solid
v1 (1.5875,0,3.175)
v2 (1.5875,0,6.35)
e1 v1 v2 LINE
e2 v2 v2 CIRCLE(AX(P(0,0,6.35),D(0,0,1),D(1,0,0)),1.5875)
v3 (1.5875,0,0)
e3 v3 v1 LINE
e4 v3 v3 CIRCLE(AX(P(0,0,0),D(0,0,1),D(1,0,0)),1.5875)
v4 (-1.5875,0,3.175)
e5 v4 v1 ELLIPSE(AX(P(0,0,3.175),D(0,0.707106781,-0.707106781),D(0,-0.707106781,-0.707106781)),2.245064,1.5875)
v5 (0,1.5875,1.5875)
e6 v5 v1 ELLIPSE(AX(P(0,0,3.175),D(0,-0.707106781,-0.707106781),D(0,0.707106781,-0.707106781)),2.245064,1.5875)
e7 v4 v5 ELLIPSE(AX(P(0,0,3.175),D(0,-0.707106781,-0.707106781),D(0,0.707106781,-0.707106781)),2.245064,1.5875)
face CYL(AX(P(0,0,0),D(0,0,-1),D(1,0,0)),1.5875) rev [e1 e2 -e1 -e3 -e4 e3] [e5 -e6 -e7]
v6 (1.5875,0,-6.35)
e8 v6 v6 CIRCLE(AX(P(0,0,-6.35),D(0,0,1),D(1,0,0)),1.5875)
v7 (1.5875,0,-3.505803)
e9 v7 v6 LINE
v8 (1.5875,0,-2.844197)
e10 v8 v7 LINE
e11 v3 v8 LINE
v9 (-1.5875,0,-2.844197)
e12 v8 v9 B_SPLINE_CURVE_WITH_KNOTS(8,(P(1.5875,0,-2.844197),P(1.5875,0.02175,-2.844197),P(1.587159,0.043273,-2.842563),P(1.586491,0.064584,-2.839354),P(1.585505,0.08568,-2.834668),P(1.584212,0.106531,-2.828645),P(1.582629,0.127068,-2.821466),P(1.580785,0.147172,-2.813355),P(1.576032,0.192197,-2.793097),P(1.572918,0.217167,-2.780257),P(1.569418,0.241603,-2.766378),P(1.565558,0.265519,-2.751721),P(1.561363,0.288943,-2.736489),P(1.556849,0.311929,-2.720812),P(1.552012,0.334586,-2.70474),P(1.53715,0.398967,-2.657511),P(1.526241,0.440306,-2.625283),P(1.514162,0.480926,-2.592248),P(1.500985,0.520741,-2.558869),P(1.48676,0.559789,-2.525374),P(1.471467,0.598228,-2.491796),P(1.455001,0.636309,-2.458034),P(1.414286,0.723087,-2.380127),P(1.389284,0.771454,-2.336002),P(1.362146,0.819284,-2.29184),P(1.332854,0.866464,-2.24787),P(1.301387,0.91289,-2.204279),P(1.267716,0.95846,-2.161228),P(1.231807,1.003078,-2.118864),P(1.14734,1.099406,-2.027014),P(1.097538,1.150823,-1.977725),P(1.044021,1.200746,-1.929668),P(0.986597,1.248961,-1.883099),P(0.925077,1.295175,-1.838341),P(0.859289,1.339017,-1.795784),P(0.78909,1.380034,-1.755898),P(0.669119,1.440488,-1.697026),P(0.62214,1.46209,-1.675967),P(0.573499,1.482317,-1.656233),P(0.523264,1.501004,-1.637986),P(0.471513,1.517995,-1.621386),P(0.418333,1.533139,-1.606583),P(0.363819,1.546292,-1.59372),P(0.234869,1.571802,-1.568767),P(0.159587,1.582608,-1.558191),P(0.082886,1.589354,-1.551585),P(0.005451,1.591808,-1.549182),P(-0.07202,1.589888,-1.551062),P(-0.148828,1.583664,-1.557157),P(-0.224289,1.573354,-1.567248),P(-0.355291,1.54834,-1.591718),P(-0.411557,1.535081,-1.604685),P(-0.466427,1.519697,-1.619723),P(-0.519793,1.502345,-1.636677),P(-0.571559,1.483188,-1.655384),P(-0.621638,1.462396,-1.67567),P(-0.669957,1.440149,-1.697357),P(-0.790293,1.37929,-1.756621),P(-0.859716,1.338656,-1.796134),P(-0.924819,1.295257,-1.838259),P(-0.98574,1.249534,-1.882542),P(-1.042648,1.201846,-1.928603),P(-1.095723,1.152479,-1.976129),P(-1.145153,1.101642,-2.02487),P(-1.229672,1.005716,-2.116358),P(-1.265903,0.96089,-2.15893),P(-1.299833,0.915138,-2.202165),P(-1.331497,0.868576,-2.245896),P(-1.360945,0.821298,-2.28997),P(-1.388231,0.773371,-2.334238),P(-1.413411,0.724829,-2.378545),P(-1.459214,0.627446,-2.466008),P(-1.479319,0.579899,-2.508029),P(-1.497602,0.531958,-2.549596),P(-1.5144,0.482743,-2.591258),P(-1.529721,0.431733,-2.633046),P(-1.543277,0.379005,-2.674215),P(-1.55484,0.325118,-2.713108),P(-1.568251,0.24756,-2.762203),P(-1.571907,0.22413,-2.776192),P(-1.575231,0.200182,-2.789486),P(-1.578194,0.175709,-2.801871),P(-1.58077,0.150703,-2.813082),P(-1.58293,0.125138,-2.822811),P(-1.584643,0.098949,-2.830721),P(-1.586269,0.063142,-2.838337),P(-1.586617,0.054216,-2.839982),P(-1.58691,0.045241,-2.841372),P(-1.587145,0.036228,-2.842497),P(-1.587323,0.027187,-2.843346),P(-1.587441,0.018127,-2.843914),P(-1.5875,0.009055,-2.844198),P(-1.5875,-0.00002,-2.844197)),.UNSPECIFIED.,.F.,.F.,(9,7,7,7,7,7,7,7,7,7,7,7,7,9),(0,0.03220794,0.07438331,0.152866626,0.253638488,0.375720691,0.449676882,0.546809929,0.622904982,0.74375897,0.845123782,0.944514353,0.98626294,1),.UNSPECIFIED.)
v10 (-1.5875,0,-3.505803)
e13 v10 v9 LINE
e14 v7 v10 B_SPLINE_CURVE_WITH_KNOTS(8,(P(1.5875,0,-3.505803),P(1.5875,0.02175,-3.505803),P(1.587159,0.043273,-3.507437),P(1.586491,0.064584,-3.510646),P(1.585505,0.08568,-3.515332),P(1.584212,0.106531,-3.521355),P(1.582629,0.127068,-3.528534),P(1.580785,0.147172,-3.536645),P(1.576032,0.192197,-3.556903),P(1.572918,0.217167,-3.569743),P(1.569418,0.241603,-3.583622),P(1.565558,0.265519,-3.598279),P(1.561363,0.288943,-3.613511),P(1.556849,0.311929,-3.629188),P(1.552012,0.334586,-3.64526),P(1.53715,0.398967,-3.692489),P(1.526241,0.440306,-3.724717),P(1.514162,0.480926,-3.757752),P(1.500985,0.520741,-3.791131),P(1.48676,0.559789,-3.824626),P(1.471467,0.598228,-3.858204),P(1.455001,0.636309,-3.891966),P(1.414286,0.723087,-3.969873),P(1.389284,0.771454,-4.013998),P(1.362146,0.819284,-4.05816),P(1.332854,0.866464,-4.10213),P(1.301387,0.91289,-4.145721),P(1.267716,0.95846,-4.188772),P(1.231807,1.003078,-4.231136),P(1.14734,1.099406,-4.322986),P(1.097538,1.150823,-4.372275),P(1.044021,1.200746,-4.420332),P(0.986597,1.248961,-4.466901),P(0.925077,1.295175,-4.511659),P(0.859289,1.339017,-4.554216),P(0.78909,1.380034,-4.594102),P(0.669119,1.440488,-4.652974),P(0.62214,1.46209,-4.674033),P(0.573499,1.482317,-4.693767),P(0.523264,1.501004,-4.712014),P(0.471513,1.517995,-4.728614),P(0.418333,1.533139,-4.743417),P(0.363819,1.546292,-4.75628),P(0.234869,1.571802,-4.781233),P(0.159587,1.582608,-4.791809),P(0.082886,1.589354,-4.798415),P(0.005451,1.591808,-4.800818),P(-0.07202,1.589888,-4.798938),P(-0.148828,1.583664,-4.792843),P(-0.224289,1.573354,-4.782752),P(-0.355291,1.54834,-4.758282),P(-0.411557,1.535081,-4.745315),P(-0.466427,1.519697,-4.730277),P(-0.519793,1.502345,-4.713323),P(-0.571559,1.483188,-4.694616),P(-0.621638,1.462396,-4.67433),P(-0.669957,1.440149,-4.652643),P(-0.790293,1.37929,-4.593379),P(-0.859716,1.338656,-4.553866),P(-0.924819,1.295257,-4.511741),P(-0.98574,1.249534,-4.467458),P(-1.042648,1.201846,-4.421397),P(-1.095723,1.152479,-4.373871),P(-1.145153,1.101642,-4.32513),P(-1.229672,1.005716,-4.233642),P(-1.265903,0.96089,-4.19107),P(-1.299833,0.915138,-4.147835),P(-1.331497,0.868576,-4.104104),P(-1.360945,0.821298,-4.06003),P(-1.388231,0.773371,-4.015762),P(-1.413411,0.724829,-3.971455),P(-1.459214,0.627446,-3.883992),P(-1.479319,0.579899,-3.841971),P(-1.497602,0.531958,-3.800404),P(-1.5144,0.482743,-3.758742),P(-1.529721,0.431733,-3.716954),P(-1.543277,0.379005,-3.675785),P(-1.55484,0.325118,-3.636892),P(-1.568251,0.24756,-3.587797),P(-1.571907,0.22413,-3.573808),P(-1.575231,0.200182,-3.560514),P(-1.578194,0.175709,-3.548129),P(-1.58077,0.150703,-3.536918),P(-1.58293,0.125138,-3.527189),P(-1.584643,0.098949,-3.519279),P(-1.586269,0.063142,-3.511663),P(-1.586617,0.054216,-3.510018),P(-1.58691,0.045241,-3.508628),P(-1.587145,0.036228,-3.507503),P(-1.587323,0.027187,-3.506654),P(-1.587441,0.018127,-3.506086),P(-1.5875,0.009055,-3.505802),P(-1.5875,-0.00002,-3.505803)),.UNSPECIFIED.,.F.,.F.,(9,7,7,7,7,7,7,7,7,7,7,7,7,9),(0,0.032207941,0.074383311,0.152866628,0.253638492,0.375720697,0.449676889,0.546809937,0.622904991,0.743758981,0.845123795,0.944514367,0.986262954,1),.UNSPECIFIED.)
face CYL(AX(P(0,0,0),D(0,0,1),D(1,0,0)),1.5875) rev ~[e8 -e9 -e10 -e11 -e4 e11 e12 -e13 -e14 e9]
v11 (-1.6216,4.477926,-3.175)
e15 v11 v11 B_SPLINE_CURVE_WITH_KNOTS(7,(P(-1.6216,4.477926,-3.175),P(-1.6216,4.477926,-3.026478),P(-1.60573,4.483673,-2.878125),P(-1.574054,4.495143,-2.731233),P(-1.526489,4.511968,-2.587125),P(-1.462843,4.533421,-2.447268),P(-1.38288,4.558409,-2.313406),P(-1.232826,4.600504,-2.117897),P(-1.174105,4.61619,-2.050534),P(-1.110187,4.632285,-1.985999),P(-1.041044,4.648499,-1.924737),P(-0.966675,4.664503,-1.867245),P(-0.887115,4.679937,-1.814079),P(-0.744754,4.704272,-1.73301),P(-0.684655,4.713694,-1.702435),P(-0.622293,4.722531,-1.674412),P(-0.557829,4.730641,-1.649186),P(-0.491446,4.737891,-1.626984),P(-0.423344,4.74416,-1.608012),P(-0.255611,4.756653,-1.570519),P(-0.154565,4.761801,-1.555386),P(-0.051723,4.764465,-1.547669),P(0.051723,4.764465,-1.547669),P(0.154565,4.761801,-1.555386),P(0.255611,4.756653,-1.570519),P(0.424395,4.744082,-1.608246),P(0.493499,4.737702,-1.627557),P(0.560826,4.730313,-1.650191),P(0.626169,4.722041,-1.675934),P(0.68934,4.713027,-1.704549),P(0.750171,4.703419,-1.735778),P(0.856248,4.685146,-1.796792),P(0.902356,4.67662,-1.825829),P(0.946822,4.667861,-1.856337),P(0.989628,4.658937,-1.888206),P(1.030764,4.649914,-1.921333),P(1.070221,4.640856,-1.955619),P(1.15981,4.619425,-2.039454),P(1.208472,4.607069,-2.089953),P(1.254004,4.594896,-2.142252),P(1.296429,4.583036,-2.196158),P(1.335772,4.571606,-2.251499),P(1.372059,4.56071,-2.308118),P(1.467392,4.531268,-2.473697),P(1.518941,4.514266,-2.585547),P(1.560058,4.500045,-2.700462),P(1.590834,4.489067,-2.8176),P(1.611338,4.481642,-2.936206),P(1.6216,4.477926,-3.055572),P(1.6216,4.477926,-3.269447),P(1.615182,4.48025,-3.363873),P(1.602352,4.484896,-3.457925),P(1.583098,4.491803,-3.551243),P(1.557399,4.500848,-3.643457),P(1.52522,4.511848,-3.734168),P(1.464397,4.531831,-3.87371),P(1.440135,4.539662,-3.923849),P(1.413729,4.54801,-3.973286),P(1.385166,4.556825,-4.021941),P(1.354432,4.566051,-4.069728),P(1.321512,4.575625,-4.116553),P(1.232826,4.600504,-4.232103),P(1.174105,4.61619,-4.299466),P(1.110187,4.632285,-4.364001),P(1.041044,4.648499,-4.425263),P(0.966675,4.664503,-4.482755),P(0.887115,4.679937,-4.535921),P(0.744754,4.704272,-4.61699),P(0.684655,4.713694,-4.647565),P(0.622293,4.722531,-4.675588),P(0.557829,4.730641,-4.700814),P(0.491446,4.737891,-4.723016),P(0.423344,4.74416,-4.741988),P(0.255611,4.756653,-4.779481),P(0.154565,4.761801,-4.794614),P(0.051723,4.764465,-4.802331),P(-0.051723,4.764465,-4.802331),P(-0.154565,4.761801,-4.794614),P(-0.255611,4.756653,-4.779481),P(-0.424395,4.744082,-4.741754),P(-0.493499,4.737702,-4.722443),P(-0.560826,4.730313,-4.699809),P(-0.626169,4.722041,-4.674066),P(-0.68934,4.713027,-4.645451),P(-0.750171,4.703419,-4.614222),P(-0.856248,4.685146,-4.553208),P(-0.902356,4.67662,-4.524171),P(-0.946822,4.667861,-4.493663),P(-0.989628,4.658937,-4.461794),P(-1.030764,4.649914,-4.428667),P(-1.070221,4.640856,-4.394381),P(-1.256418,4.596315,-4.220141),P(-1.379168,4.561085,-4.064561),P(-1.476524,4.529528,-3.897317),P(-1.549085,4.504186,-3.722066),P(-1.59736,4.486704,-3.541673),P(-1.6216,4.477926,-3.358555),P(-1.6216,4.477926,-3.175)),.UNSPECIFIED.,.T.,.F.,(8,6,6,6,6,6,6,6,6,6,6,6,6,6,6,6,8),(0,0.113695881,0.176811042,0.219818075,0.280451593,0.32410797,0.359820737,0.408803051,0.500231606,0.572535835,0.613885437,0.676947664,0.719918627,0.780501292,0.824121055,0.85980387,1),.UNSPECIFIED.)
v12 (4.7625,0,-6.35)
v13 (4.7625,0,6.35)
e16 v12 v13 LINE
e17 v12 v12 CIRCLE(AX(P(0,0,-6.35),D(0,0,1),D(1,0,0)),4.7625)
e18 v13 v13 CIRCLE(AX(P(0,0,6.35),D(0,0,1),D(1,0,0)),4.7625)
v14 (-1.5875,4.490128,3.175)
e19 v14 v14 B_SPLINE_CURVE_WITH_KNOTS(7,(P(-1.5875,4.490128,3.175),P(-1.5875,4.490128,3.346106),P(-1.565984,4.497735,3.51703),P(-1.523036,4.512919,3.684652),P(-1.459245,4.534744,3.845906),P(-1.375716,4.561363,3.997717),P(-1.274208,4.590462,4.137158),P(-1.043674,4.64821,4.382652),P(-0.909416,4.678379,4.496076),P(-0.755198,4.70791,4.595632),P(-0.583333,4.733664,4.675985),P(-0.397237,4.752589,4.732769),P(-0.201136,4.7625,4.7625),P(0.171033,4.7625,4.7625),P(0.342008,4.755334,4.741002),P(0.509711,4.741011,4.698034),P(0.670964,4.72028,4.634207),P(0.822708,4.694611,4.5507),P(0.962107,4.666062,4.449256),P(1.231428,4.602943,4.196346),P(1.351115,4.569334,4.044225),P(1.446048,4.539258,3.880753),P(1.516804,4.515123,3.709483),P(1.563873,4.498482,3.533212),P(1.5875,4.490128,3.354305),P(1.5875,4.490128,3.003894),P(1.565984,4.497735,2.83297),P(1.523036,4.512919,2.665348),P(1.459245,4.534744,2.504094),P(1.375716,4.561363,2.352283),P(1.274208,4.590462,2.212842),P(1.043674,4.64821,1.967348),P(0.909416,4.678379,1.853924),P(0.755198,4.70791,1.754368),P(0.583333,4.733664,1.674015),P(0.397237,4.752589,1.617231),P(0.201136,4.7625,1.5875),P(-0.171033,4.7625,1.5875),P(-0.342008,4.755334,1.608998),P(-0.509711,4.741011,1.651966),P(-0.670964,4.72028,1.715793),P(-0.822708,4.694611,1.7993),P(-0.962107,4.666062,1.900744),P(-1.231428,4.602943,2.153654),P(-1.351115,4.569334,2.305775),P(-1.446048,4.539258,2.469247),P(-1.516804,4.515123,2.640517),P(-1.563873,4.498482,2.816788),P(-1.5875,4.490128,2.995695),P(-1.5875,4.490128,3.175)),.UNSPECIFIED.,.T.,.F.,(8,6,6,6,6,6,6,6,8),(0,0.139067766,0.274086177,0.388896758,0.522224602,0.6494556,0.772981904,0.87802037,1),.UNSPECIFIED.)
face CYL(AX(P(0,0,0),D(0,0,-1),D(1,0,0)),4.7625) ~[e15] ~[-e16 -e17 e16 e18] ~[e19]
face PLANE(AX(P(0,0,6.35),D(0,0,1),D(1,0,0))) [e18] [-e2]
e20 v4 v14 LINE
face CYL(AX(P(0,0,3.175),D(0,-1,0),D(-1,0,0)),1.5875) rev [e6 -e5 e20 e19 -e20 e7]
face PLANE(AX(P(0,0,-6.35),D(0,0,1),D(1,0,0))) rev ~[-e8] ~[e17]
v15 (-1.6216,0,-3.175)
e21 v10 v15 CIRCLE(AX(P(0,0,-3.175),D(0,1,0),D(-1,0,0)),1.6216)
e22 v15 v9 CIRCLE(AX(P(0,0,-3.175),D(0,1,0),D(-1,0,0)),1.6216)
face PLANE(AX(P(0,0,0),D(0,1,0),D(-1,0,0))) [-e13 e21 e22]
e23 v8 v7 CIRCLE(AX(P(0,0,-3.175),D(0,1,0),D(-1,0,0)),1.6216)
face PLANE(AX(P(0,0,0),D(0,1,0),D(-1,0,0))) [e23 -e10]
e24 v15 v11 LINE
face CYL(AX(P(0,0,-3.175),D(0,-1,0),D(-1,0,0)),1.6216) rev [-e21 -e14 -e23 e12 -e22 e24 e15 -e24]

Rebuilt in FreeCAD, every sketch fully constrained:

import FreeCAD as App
import Part
import Sketcher
from FreeCAD import Vector
Q = App.Units.Quantity

doc = App.newDocument("Part")
body = doc.addObject("PartDesign::Body", "Body")

# Sketch on XY plane
sketch1 = doc.addObject("Sketcher::SketchObject", "Sketch")
body.addObject(sketch1)
sketch1.AttachmentSupport = (doc.XY_Plane, [""])
sketch1.MapMode = "FlatFace"
sketch1.addGeometry([
    Part.Circle(Vector(0, 0, 0), Vector(0, 0, 1), 4.8),
    Part.Circle(Vector(0, 0, 0), Vector(0, 0, 1), 1.6),
], False)
sketch1.addConstraint([
    Sketcher.Constraint("Coincident", 0, 3, -1, 1),
    Sketcher.Constraint("Coincident", 1, 3, -1, 1),
    Sketcher.Constraint("Diameter", 0, Q("0.375 in")),
    Sketcher.Constraint("Diameter", 1, Q("0.125 in")),
])
pad1 = doc.addObject("PartDesign::Pad", "Pad")
body.addObject(pad1)
pad1.Profile = sketch1
pad1.Length = Q("0.5 in")
pad1.Midplane = True

# Sketch on XZ plane
sketch2 = doc.addObject("Sketcher::SketchObject", "Sketch001")
body.addObject(sketch2)
sketch2.AttachmentSupport = (doc.XZ_Plane, [""])
sketch2.MapMode = "FlatFace"
sketch2.addGeometry([
    Part.Circle(Vector(0, 3.2, 0), Vector(0, 0, 1), 1.6),
    Part.Circle(Vector(0, -3.2, 0), Vector(0, 0, 1), 1.6),
], False)
sketch2.addConstraint([
    Sketcher.Constraint("Symmetric", 0, 3, 1, 3, -1, 1),
    Sketcher.Constraint("PointOnObject", 0, 3, -2),
    Sketcher.Constraint("Diameter", 0, Q("0.125 in")),
    Sketcher.Constraint("DistanceY", -1, 1, 0, 3, Q("0.125 in")),
    Sketcher.Constraint("Diameter", 1, 3.2432),
])
pocket1 = doc.addObject("PartDesign::Pocket", "Pocket")
body.addObject(pocket1)
pocket1.Profile = sketch2
pocket1.Length = Q("0.3125 in")

doc.recompute()
